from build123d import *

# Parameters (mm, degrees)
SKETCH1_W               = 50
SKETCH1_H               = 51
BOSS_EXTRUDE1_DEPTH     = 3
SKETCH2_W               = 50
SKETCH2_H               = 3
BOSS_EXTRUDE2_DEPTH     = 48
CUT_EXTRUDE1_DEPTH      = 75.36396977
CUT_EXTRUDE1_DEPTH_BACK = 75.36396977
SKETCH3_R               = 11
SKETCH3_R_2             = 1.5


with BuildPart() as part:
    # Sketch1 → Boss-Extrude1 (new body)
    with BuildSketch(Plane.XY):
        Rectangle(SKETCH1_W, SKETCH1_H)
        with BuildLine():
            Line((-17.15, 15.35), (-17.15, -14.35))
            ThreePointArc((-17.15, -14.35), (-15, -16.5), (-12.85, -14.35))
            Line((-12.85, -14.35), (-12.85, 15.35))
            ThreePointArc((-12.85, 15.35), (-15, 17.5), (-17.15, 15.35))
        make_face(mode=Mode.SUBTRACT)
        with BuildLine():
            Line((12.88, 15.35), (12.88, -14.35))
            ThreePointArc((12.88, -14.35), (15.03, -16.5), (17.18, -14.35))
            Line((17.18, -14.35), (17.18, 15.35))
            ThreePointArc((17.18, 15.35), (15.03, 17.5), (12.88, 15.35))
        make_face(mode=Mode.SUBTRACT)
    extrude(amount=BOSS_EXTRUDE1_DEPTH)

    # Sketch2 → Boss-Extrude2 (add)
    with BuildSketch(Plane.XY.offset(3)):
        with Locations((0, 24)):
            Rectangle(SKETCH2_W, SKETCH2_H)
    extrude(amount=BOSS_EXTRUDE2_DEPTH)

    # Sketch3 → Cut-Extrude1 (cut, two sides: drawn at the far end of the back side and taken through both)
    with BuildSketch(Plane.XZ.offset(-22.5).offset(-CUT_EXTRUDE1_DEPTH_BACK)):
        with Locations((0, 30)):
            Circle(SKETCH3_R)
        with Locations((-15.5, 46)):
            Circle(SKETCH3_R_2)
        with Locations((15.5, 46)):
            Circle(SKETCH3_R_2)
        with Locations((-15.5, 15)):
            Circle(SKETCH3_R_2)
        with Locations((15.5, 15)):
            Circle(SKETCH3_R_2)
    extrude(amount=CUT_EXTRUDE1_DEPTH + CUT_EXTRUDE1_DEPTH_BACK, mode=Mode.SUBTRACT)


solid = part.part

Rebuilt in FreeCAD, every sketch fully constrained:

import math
import FreeCAD as App
import Part
import Sketcher

doc = App.newDocument("Part")
body = doc.addObject("PartDesign::Body", "Body")

# Sketch on XY plane
sketch1 = body.newObject("Sketcher::SketchObject", "Sketch")
sketch1.AttachmentSupport = (doc.getObject("XY_Plane"), [""])
sketch1.MapMode = "FlatFace"
sketch1.addGeometry([
    Part.LineSegment(App.Vector(-25, 25.5, 0), App.Vector(-25, -25.5, 0)),  # 0
    Part.LineSegment(App.Vector(-25, -25.5, 0), App.Vector(25, -25.5, 0)),  # 1
    Part.LineSegment(App.Vector(25, -25.5, 0), App.Vector(25, 25.5, 0)),  # 2
    Part.LineSegment(App.Vector(25, 25.5, 0), App.Vector(-25, 25.5, 0)),  # 3
    Part.LineSegment(App.Vector(-17.1, -14.3, 0), App.Vector(-17.1, 15.3, 0)),  # 4
    Part.ArcOfCircle(Part.Circle(App.Vector(-15, 15.3, 0), App.Vector(0, 0, 1), 2.1), math.radians(0), math.radians(180)),  # 5
    Part.LineSegment(App.Vector(-12.8, 15.3, 0), App.Vector(-12.8, -14.3, 0)),  # 6
    Part.ArcOfCircle(Part.Circle(App.Vector(-15, -14.3, 0), App.Vector(0, 0, 1), 2.1), math.radians(180), math.radians(360)),  # 7
    Part.LineSegment(App.Vector(12.9, -14.3, 0), App.Vector(12.9, 15.3, 0)),  # 8
    Part.ArcOfCircle(Part.Circle(App.Vector(15, 15.3, 0), App.Vector(0, 0, 1), 2.1), math.radians(0), math.radians(180)),  # 9
    Part.LineSegment(App.Vector(17.2, 15.3, 0), App.Vector(17.2, -14.3, 0)),  # 10
    Part.ArcOfCircle(Part.Circle(App.Vector(15, -14.3, 0), App.Vector(0, 0, 1), 2.1), math.radians(180), math.radians(360)),  # 11
], False)
sketch1.addConstraint([
    Sketcher.Constraint("Coincident", 0, 2, 1, 1),
    Sketcher.Constraint("Coincident", 1, 2, 2, 1),
    Sketcher.Constraint("Coincident", 2, 2, 3, 1),
    Sketcher.Constraint("Coincident", 3, 2, 0, 1),
    Sketcher.Constraint("Tangent", 4, 2, 5, 2),
    Sketcher.Constraint("Tangent", 5, 1, 6, 1),
    Sketcher.Constraint("Tangent", 6, 2, 7, 2),
    Sketcher.Constraint("Tangent", 7, 1, 4, 1),
    Sketcher.Constraint("Tangent", 8, 2, 9, 2),
    Sketcher.Constraint("Tangent", 9, 1, 10, 1),
    Sketcher.Constraint("Tangent", 10, 2, 11, 2),
    Sketcher.Constraint("Tangent", 11, 1, 8, 1),
    Sketcher.Constraint("Vertical", 0),
    Sketcher.Constraint("Horizontal", 1),
    Sketcher.Constraint("Vertical", 2),
    Sketcher.Constraint("Horizontal", 3),
    Sketcher.Constraint("Vertical", 4),
    Sketcher.Constraint("Vertical", 6),
    Sketcher.Constraint("Vertical", 8),
    Sketcher.Constraint("Vertical", 10),
    Sketcher.Constraint("Equal", 7, 9),
    Sketcher.Constraint("Symmetric", 0, 2, 2, 2, -1, 1),
    Sketcher.Constraint("Horizontal", 5, 3, 9, 3),
    Sketcher.Constraint("Horizontal", 7, 3, 11, 3),
    Sketcher.Constraint("DistanceX", 1, 1, 1, 2, 50.0),
    Sketcher.Constraint("DistanceY", 0, 2, 0, 1, 51.0),
    Sketcher.Constraint("Radius", 5, 2.15),
    Sketcher.Constraint("DistanceY", 4, 1, 4, 2, 29.7),
    Sketcher.Constraint("DistanceX", 5, 3, -1, 1, 15.0),
    Sketcher.Constraint("DistanceY", -1, 1, 5, 3, 15.35),
    Sketcher.Constraint("DistanceX", -1, 1, 9, 3, 15.03),
])
pad1 = body.newObject("PartDesign::Pad", "Pad")
pad1.Profile = sketch1
pad1.Length = 3

# Sketch on XY plane
sketch2 = body.newObject("Sketcher::SketchObject", "Sketch001")
sketch2.AttachmentSupport = (doc.getObject("XY_Plane"), [""])
sketch2.MapMode = "FlatFace"
sketch2.AttachmentOffset = App.Placement(App.Vector(0, 0, 3), App.Rotation())
sketch2.addGeometry([
    Part.LineSegment(App.Vector(-25, 25.5, 0), App.Vector(-25, 22.5, 0)),
    Part.LineSegment(App.Vector(-25, 22.5, 0), App.Vector(25, 22.5, 0)),
    Part.LineSegment(App.Vector(25, 22.5, 0), App.Vector(25, 25.5, 0)),
    Part.LineSegment(App.Vector(25, 25.5, 0), App.Vector(-25, 25.5, 0)),
], False)
sketch2.addConstraint([
    Sketcher.Constraint("Coincident", 0, 2, 1, 1),
    Sketcher.Constraint("Coincident", 1, 2, 2, 1),
    Sketcher.Constraint("Coincident", 2, 2, 3, 1),
    Sketcher.Constraint("Coincident", 3, 2, 0, 1),
    Sketcher.Constraint("Vertical", 0),
    Sketcher.Constraint("Horizontal", 1),
    Sketcher.Constraint("Vertical", 2),
    Sketcher.Constraint("Horizontal", 3),
    Sketcher.Constraint("DistanceX", 1, 1, 1, 2, 50.0),
    Sketcher.Constraint("DistanceY", 0, 2, 0, 1, 3.0),
    Sketcher.Constraint("DistanceX", 0, 2, -1, 1, 25.0),
    Sketcher.Constraint("DistanceY", -1, 1, 0, 2, 22.5),
])
pad2 = body.newObject("PartDesign::Pad", "Pad001")
pad2.Profile = sketch2
pad2.Length = 48

# Sketch on XZ plane
sketch3 = body.newObject("Sketcher::SketchObject", "Sketch002")
sketch3.AttachmentSupport = (doc.getObject("XZ_Plane"), [""])
sketch3.MapMode = "FlatFace"
sketch3.AttachmentOffset = App.Placement(App.Vector(0, 0, -22.5), App.Rotation())
sketch3.addGeometry([
    Part.Circle(App.Vector(0, 30, 0), App.Vector(0, 0, 1), 11),  # 0
    Part.Circle(App.Vector(-15.5, 46, 0), App.Vector(0, 0, 1), 1.5),  # 1
    Part.Circle(App.Vector(15.5, 46, 0), App.Vector(0, 0, 1), 1.5),  # 2
    Part.Circle(App.Vector(-15.5, 15, 0), App.Vector(0, 0, 1), 1.5),  # 3
    Part.Circle(App.Vector(15.5, 15, 0), App.Vector(0, 0, 1), 1.5),  # 4
], False)
sketch3.addConstraint([
    Sketcher.Constraint("Equal", 1, 2),
    Sketcher.Constraint("Equal", 2, 3),
    Sketcher.Constraint("Equal", 3, 4),
    Sketcher.Constraint("Symmetric", 1, 3, 2, 3, -2),
    Sketcher.Constraint("Symmetric", 3, 3, 4, 3, -2),
    Sketcher.Constraint("PointOnObject", 0, 3, -2),
    Sketcher.Constraint("Vertical", 1, 3, 3, 3),
    Sketcher.Constraint("Diameter", 0, 22.0),
    Sketcher.Constraint("Diameter", 1, 3.0),
    Sketcher.Constraint("DistanceY", -1, 1, 0, 3, 30.0),
    Sketcher.Constraint("DistanceY", -1, 1, 1, 3, 46.0),
    Sketcher.Constraint("DistanceY", -1, 1, 3, 3, 15.0),
    Sketcher.Constraint("DistanceX", 1, 3, 2, 3, 31.0),
])
pocket1 = body.newObject("PartDesign::Pocket", "Pocket")
pocket1.Profile = sketch3
pocket1.Type = "ThroughAll"
pocket1.Midplane = True

doc.recompute()
